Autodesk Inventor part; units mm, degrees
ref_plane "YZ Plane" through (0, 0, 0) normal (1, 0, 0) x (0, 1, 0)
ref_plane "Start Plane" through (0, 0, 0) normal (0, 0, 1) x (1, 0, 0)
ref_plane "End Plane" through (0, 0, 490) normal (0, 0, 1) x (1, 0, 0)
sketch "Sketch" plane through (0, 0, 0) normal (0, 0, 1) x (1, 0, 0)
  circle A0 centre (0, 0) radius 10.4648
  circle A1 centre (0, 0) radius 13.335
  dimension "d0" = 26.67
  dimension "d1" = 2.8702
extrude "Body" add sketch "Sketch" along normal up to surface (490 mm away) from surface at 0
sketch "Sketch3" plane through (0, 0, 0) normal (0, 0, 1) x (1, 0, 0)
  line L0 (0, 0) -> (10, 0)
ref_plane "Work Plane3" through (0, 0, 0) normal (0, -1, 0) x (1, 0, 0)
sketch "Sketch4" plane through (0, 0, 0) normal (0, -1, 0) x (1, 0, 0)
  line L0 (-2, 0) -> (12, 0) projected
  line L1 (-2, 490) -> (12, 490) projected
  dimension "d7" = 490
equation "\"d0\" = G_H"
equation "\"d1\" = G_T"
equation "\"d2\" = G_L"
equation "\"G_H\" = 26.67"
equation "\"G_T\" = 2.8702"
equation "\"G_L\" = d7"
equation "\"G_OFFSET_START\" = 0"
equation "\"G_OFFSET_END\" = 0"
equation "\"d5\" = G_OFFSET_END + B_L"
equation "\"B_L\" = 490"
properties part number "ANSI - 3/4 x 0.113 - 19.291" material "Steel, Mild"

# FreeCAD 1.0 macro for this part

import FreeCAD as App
import Part
import Sketcher
Q = App.Units.Quantity

doc = App.newDocument("Part")
body = doc.addObject("PartDesign::Body", "Body")

sketch1 = body.newObject("Sketcher::SketchObject", "Sketch")
sketch1.AttachmentSupport = (doc.getObject("XY_Plane"), [""])
sketch1.MapMode = "FlatFace"
sketch1.addGeometry([
    Part.Circle(App.Vector(0, 0, 0), App.Vector(0, 0, 1), 13),
    Part.Circle(App.Vector(0, 0, 0), App.Vector(0, 0, 1), 10),
], False)
sketch1.addConstraint([
    Sketcher.Constraint("Coincident", 0, 3, -1, 1),
    Sketcher.Constraint("Coincident", 1, 3, -1, 1),
    Sketcher.Constraint("Diameter", 0, Q("1.05 in")),
    Sketcher.Constraint("Diameter", 1, Q("0.824 in")),
])
pad1 = body.newObject("PartDesign::Pad", "Pad")
pad1.Profile = sketch1
pad1.Length = 490

doc.recompute()
